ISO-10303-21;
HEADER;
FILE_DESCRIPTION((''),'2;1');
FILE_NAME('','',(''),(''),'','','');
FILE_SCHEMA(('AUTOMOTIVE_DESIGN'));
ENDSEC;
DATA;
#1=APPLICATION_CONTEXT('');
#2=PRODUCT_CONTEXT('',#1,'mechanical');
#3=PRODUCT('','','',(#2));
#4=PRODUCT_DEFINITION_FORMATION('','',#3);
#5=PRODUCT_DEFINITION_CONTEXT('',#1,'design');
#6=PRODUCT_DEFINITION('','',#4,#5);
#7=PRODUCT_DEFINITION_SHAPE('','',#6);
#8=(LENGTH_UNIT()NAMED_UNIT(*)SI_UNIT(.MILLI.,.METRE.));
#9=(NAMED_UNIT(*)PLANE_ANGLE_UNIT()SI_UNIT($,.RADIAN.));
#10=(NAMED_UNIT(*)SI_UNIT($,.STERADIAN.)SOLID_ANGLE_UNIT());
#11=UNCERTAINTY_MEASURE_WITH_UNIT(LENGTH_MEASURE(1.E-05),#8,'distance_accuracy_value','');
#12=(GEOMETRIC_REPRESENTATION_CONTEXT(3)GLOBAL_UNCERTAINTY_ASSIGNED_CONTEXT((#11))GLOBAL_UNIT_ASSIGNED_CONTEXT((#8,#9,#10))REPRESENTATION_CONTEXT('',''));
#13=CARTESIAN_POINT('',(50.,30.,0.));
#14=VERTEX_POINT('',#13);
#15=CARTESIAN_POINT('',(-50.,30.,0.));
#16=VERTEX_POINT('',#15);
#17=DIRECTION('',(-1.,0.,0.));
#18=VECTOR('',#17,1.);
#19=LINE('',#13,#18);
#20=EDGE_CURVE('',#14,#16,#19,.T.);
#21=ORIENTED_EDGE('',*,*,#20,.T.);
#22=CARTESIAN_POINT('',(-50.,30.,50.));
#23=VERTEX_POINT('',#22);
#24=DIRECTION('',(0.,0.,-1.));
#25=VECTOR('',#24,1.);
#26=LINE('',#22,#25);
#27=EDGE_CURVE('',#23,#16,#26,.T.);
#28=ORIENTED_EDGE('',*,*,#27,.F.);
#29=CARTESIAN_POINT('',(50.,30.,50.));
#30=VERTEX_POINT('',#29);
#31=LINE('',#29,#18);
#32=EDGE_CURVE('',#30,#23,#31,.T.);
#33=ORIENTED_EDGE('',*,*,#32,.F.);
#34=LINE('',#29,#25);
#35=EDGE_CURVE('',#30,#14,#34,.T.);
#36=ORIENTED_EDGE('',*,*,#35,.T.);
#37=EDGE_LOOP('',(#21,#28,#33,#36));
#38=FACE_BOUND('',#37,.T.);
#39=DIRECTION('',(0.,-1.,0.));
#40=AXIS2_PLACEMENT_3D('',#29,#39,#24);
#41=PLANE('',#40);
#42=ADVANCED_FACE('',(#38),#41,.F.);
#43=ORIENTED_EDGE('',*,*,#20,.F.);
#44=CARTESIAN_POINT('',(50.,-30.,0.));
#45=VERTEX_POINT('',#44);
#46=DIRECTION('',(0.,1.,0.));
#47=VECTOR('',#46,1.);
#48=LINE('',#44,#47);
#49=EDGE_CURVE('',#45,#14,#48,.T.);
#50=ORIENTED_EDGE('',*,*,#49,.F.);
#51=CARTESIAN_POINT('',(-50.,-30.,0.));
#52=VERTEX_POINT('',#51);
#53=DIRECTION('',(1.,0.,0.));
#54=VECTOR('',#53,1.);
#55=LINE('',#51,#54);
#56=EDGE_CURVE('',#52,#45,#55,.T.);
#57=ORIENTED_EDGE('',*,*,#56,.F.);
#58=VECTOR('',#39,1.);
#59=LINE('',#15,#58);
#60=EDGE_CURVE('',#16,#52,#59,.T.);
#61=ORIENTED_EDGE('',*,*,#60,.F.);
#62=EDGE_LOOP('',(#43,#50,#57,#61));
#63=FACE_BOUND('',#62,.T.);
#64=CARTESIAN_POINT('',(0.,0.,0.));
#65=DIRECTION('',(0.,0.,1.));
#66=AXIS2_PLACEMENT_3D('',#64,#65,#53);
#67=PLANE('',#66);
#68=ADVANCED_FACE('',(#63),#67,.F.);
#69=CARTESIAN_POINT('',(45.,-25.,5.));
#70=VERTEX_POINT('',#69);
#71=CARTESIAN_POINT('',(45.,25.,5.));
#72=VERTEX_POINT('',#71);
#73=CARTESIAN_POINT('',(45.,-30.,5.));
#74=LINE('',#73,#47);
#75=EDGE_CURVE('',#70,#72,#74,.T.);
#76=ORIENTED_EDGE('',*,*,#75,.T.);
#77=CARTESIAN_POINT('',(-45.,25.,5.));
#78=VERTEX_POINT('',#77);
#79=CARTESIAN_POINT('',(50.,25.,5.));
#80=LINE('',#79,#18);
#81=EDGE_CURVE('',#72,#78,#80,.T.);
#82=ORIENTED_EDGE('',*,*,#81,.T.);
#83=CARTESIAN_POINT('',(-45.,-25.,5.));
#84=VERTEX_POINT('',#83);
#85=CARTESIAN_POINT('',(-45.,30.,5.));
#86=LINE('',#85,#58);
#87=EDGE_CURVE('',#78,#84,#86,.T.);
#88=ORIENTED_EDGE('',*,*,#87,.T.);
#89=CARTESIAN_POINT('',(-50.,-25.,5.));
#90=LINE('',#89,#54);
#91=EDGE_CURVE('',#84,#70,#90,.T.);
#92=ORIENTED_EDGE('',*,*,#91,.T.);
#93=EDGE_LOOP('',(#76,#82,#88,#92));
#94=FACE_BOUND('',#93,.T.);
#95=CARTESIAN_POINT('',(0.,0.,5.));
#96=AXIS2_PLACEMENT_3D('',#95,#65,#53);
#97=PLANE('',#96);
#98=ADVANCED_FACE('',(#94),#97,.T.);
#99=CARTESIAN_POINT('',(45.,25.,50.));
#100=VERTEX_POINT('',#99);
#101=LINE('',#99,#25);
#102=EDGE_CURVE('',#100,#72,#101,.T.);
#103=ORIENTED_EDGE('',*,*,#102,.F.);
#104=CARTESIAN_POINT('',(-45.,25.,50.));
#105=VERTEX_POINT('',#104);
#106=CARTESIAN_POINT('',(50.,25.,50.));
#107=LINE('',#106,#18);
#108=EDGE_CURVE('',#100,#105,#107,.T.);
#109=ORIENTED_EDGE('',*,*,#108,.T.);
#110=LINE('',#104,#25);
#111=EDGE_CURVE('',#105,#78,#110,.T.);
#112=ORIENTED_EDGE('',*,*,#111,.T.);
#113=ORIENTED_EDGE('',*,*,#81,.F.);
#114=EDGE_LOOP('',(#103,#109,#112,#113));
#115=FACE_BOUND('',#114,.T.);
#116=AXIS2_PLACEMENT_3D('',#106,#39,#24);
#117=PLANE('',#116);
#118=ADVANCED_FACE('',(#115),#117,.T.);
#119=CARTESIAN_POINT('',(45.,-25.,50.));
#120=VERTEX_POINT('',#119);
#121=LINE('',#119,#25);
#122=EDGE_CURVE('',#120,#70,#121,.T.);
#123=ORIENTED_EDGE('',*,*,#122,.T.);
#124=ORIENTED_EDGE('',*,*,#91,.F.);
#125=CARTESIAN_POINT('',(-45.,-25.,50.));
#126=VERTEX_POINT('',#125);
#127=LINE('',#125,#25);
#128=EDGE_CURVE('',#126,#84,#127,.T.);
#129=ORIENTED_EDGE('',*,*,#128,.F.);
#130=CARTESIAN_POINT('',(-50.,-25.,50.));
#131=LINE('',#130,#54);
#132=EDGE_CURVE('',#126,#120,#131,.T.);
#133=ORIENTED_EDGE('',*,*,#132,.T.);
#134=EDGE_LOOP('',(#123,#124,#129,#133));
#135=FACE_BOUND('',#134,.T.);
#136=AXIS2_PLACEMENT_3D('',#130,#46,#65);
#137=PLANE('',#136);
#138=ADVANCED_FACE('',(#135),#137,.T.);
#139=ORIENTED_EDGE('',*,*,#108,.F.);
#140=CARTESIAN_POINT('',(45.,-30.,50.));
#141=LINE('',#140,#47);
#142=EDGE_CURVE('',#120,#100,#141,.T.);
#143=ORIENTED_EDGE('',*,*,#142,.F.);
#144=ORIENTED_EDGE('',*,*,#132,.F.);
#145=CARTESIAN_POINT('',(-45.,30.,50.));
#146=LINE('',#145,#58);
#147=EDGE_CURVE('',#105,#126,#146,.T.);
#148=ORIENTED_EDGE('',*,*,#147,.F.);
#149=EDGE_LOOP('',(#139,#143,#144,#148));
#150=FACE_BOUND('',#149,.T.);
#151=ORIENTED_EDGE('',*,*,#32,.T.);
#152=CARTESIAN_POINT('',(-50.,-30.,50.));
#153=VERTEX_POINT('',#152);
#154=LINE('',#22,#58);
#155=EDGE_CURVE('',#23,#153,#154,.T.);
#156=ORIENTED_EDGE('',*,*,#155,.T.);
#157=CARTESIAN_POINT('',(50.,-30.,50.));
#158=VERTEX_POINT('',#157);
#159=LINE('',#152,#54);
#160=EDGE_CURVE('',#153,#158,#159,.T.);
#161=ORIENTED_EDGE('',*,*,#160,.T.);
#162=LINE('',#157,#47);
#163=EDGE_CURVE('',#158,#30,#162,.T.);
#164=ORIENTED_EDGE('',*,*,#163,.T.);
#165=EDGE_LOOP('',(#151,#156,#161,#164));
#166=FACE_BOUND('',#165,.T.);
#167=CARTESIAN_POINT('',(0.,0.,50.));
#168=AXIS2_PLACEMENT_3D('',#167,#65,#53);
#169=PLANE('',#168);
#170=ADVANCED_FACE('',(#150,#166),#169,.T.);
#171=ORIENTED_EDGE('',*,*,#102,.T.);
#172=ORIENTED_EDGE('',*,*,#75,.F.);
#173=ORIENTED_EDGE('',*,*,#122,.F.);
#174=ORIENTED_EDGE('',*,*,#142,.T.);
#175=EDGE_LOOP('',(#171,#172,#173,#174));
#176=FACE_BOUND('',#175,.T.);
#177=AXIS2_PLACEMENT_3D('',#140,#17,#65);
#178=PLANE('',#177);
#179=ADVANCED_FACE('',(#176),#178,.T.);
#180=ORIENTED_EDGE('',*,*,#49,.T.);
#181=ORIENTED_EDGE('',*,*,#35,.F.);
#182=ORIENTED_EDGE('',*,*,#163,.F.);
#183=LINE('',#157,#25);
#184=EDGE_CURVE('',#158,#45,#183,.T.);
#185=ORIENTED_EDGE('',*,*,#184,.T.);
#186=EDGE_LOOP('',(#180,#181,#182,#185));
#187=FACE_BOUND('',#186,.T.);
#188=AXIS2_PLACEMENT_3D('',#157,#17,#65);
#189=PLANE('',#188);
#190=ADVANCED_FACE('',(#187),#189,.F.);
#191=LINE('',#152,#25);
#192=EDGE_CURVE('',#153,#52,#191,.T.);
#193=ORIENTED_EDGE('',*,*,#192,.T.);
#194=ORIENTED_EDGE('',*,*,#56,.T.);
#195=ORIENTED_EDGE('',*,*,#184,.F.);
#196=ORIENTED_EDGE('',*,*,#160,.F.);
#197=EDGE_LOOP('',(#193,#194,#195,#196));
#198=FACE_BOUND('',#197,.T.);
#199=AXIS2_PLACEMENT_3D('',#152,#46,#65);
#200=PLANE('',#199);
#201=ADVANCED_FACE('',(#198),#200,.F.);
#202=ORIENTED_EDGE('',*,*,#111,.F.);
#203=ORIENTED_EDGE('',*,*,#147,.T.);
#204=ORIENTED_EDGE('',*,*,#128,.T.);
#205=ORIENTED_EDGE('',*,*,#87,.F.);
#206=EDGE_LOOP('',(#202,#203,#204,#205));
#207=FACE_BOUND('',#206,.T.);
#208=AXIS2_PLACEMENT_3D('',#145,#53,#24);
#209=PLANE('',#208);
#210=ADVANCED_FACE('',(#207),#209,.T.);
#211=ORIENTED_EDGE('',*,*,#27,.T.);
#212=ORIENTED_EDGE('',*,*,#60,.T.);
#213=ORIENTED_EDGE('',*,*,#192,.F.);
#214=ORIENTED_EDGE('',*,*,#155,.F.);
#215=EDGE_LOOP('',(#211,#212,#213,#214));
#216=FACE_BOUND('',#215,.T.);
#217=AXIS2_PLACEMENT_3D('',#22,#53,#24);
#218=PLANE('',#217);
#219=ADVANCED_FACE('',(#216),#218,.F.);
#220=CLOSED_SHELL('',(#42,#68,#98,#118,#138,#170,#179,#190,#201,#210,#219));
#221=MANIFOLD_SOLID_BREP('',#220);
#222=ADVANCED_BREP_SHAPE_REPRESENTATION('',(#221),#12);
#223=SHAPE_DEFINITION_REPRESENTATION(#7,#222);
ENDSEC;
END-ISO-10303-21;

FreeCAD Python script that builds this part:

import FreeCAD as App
import Part
import Sketcher
Q = App.Units.Quantity


def faces_at(feature, points):
    """Names of the faces that lie closest to the given points."""
    faces = feature.Shape.Faces
    near = lambda p: min(range(len(faces)), key=lambda i: faces[i].distToShape(Part.Vertex(*p))[0])
    return sorted({f"Face{near(p) + 1}" for p in points})

doc = App.newDocument("Part")
body = doc.addObject("PartDesign::Body", "Body")

# Sketch on XY plane
sketch1 = body.newObject("Sketcher::SketchObject", "Sketch")
sketch1.AttachmentSupport = (doc.getObject("XY_Plane"), [""])
sketch1.MapMode = "FlatFace"
sketch1.addGeometry([
    Part.LineSegment(App.Vector(-50, 30, 0), App.Vector(-50, -30, 0)),
    Part.LineSegment(App.Vector(-50, -30, 0), App.Vector(50, -30, 0)),
    Part.LineSegment(App.Vector(50, -30, 0), App.Vector(50, 30, 0)),
    Part.LineSegment(App.Vector(50, 30, 0), App.Vector(-50, 30, 0)),
], False)
sketch1.addConstraint([
    Sketcher.Constraint("Coincident", 0, 2, 1, 1),
    Sketcher.Constraint("Coincident", 1, 2, 2, 1),
    Sketcher.Constraint("Coincident", 2, 2, 3, 1),
    Sketcher.Constraint("Coincident", 3, 2, 0, 1),
    Sketcher.Constraint("Vertical", 0),
    Sketcher.Constraint("Horizontal", 1),
    Sketcher.Constraint("Vertical", 2),
    Sketcher.Constraint("Horizontal", 3),
    Sketcher.Constraint("Symmetric", 0, 2, 2, 2, -1, 1),
    Sketcher.Constraint("DistanceX", 1, 1, 1, 2, Q("100 mm")),
    Sketcher.Constraint("DistanceY", 0, 2, 0, 1, Q("60 mm")),
])
pad1 = body.newObject("PartDesign::Pad", "Pad")
pad1.Profile = sketch1
pad1.Length = 50
doc.recompute()

thickness = body.newObject("PartDesign::Thickness", "Thickness")
thickness.Base = (pad1, faces_at(pad1, [(0, 0, 50)]))
thickness.Value = 5
thickness.Reversed = True
thickness.Join = "Intersection"

doc.recompute()
